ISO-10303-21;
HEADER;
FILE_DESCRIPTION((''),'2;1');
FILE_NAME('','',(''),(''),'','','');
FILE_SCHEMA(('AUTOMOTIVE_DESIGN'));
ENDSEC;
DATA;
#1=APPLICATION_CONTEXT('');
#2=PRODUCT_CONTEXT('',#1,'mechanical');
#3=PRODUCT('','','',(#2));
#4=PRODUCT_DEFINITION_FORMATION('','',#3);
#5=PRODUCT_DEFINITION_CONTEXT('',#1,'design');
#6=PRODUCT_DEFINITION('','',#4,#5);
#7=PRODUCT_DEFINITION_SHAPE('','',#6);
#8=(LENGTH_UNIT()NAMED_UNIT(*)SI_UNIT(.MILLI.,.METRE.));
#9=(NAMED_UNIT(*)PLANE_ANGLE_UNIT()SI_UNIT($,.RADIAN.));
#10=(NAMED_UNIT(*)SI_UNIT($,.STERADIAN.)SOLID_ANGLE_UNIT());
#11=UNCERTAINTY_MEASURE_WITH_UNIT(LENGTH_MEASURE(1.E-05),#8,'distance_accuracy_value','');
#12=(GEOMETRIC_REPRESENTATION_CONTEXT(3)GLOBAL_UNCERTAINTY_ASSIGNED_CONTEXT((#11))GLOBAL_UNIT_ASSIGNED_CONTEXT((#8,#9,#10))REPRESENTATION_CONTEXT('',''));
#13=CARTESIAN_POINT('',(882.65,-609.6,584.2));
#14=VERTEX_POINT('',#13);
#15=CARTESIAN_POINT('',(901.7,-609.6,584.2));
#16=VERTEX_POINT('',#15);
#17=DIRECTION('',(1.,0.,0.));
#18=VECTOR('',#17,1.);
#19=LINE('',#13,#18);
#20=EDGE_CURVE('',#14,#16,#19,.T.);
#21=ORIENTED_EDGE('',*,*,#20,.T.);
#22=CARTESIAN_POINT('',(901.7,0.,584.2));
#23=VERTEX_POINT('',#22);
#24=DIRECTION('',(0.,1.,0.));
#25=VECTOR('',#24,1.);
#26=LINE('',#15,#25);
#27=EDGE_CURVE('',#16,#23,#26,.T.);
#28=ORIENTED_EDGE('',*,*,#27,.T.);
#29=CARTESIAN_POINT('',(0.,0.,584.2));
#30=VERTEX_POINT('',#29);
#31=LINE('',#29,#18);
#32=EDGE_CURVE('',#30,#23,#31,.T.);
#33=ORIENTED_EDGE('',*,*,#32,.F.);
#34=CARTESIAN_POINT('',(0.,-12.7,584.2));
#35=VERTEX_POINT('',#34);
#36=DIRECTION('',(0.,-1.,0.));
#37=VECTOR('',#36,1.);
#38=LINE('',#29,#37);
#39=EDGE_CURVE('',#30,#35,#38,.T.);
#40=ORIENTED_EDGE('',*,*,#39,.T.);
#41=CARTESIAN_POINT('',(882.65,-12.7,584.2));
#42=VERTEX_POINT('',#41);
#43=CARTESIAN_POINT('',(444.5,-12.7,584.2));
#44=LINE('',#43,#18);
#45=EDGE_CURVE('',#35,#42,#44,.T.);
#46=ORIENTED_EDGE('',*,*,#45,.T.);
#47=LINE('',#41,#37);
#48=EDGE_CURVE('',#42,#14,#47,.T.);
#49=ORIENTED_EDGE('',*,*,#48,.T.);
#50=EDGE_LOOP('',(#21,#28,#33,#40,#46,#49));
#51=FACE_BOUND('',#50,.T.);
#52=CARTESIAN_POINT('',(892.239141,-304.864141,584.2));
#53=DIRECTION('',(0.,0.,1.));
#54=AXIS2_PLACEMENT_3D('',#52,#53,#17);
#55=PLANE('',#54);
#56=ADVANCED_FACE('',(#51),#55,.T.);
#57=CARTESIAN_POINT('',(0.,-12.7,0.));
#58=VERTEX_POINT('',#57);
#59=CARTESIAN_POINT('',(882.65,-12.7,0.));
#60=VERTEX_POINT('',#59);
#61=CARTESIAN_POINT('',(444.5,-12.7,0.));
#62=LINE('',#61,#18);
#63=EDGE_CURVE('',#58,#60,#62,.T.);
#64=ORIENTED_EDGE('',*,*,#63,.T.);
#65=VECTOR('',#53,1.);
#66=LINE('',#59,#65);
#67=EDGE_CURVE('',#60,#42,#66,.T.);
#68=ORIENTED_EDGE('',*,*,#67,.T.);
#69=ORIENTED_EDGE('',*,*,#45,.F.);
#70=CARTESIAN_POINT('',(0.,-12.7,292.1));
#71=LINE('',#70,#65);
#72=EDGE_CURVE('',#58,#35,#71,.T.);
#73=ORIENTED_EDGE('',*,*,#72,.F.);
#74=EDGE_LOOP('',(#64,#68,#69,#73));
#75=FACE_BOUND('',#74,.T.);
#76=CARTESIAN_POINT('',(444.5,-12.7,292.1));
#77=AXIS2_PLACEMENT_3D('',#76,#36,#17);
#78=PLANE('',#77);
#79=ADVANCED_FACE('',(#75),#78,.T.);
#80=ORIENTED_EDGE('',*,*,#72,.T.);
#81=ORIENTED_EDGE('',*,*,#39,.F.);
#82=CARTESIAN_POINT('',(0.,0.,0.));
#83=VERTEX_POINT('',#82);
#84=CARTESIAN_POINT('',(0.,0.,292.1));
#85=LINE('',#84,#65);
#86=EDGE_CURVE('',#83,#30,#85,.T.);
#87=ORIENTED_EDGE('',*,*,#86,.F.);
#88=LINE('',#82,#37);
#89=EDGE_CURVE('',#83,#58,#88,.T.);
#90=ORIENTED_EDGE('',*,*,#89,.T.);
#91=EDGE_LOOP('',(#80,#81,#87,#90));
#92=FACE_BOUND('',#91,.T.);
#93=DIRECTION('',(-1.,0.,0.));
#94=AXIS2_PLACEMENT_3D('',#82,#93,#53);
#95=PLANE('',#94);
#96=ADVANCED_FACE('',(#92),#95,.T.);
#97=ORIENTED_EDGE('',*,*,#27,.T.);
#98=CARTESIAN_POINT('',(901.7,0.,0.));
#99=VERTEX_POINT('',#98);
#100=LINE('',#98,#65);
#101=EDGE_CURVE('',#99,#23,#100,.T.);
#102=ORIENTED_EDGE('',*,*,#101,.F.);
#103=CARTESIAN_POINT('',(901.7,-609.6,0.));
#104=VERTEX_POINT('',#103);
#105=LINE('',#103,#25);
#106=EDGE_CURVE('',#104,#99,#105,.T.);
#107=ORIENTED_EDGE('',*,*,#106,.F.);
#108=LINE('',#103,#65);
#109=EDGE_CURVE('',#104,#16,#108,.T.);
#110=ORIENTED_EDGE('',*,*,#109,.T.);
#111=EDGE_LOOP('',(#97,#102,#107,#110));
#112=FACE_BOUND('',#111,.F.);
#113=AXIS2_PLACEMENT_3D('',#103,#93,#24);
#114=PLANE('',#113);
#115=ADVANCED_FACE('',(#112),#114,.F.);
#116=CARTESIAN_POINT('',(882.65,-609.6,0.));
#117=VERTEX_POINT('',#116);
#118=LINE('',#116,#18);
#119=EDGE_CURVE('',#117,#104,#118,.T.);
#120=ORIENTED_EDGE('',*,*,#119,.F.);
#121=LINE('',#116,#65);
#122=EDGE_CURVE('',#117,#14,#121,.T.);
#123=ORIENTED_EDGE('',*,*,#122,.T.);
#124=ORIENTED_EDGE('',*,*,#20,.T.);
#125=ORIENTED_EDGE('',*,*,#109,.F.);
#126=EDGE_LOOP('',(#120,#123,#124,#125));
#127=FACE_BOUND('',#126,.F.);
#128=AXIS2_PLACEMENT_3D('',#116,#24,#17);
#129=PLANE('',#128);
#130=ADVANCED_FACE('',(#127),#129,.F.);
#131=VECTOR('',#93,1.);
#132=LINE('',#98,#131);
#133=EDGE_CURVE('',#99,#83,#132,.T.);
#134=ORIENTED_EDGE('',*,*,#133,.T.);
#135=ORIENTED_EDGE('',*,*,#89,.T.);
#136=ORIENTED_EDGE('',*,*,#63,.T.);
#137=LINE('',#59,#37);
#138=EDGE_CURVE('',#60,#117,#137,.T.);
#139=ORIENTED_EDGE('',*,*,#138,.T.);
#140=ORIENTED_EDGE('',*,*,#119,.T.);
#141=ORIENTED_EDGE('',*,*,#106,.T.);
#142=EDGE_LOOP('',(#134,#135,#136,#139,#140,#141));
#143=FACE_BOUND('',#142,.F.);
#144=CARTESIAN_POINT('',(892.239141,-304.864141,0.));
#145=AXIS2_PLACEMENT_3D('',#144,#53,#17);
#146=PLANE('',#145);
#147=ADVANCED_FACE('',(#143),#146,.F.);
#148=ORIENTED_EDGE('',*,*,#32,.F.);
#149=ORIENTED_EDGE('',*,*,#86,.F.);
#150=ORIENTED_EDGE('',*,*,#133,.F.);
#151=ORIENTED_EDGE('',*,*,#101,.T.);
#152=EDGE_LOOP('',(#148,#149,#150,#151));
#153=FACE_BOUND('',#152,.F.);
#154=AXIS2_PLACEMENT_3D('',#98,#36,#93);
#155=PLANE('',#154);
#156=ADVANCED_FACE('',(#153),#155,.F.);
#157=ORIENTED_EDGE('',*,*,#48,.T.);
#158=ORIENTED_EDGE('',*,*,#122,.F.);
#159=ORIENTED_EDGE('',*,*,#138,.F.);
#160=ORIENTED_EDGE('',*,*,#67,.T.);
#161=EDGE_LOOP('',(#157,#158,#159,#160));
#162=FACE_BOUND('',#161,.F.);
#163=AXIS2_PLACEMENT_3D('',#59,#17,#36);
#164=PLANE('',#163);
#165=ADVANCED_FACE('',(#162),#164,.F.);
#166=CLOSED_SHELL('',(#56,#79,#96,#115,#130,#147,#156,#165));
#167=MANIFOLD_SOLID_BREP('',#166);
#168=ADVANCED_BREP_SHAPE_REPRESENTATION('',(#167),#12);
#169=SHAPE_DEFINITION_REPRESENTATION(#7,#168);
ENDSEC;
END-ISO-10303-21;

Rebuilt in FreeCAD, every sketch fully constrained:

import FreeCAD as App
import Part
import Sketcher

V = App.Vector
Q = App.Units.Quantity


def add_polygon(sketch, points):
    """Adds a closed chain of lines whose ends are joined by coincident constraints."""
    first, n = sketch.GeometryCount, len(points)
    for a, b in zip(points, points[1:] + points[:1]):
        sketch.addGeometry(Part.LineSegment(App.Vector(*a, 0), App.Vector(*b, 0)), False)
    for i in range(n):
        sketch.addConstraint(Sketcher.Constraint("Coincident", first + i, 2, first + (i + 1) % n, 1))

doc = App.newDocument("Part")
body = doc.addObject("PartDesign::Body", "Body")

# Sketch on XZ plane
sketch1 = body.newObject("Sketcher::SketchObject", "Sketch")
sketch1.AttachmentSupport = (doc.getObject("XZ_Plane"), [""])
sketch1.MapMode = "FlatFace"
add_polygon(sketch1, [(0, 584), (0, 0), (889, 0), (889, 584)])  # lines 0-3
sketch1.addConstraint([
    Sketcher.Constraint("Vertical", 0),
    Sketcher.Constraint("Horizontal", 1),
    Sketcher.Constraint("Vertical", 2),
    Sketcher.Constraint("Horizontal", 3),
    Sketcher.Constraint("Coincident", 0, 2, -1, 1),
    Sketcher.Constraint("DistanceX", 1, 1, 1, 2, Q("35 in")),
    Sketcher.Constraint("DistanceY", 0, 2, 0, 1, Q("23 in")),
])
pad1 = body.newObject("PartDesign::Pad", "Pad")
pad1.Profile = sketch1
pad1.Length = Q("0.5 in")

# Sketch on XY plane
sketch2 = body.newObject("Sketcher::SketchObject", "Sketch001")
sketch2.AttachmentSupport = (doc.getObject("XY_Plane"), [""])
sketch2.MapMode = "FlatFace"
add_polygon(sketch2, [(902, 0), (889, 0), (889, -13), (883, -13), (883, -610), (902, -610)])  # lines 0-5
sketch2.addConstraint([
    Sketcher.Constraint("Horizontal", 0),
    Sketcher.Constraint("Vertical", 1),
    Sketcher.Constraint("Horizontal", 2),
    Sketcher.Constraint("Vertical", 3),
    Sketcher.Constraint("Horizontal", 4),
    Sketcher.Constraint("Vertical", 5),
    Sketcher.Constraint("PointOnObject", 0, 2, -1),
    Sketcher.Constraint("Equal", 0, 1),
    Sketcher.Constraint("DistanceY", 5, 1, 5, 2, Q("24 in")),
    Sketcher.Constraint("DistanceX", 0, 2, 0, 1, Q("0.5 in")),
    Sketcher.Constraint("DistanceX", -1, 1, 0, 2, Q("35 in")),
    Sketcher.Constraint("DistanceX", 2, 2, 2, 1, Q("0.25 in")),
])
pad2 = body.newObject("PartDesign::Pad", "Pad001")
pad2.Profile = sketch2
pad2.Length = Q("23 in")

doc.recompute()
